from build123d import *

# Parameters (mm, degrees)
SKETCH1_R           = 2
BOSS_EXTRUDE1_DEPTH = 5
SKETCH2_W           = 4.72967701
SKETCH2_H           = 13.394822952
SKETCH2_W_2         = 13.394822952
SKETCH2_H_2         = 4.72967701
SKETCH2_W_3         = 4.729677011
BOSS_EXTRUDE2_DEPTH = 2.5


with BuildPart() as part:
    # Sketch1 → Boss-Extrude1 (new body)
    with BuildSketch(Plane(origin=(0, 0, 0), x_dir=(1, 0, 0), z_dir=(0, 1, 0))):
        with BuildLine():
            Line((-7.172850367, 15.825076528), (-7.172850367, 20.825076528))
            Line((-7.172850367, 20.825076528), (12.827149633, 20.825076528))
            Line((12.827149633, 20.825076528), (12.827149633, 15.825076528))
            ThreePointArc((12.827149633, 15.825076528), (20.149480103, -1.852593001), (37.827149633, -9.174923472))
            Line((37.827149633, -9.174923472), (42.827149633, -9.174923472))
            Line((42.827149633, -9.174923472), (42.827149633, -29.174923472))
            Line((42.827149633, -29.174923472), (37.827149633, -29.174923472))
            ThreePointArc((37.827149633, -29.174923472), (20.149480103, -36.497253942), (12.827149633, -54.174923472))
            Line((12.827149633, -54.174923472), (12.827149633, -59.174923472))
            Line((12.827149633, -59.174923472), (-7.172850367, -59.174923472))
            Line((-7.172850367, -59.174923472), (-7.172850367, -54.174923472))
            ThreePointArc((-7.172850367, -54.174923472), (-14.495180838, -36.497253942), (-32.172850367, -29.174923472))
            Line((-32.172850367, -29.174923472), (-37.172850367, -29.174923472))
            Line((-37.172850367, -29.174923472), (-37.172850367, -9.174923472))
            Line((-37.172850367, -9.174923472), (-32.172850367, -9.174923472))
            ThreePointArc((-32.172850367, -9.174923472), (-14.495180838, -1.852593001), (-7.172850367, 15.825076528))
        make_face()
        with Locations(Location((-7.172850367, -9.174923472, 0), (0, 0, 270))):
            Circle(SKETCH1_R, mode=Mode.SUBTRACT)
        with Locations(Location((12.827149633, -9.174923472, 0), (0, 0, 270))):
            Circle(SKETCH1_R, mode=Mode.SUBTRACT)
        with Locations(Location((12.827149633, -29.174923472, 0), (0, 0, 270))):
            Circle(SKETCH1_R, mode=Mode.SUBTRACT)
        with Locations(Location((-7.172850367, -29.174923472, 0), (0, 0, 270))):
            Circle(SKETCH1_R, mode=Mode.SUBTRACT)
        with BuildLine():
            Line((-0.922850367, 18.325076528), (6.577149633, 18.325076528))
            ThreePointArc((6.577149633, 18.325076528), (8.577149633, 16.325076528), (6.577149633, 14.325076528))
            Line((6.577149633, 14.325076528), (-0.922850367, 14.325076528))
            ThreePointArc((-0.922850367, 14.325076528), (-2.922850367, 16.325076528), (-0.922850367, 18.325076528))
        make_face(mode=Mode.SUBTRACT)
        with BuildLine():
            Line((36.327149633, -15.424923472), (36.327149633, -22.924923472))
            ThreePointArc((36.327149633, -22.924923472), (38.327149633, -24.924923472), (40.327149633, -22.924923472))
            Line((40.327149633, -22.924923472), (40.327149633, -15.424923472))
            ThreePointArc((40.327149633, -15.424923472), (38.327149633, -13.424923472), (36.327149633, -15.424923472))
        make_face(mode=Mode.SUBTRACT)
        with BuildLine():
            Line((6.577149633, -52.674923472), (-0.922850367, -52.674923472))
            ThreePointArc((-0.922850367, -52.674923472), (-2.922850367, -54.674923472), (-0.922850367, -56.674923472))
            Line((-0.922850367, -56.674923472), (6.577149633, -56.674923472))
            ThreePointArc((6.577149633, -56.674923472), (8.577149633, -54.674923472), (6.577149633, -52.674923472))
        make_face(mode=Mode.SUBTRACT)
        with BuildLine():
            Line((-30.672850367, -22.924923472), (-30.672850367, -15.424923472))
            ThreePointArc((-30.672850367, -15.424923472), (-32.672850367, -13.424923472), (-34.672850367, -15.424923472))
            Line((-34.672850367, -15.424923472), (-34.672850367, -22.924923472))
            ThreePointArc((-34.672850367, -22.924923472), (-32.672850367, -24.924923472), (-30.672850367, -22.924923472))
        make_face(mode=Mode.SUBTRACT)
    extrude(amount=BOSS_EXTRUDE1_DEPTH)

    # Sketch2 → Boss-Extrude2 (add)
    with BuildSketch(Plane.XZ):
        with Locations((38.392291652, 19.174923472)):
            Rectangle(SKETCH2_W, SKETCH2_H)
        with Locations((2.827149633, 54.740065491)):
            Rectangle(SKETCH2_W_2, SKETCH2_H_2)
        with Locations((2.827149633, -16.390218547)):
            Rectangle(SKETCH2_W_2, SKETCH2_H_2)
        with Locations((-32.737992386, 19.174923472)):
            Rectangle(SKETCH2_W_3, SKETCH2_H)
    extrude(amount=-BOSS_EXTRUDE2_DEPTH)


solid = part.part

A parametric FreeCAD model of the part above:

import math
import FreeCAD as App
import Part
import Sketcher

V = App.Vector


def add_polygon(sketch, points):
    """Adds a closed chain of lines whose ends are joined by coincident constraints."""
    first, n = sketch.GeometryCount, len(points)
    for a, b in zip(points, points[1:] + points[:1]):
        sketch.addGeometry(Part.LineSegment(App.Vector(*a, 0), App.Vector(*b, 0)), False)
    for i in range(n):
        sketch.addConstraint(Sketcher.Constraint("Coincident", first + i, 2, first + (i + 1) % n, 1))

doc = App.newDocument("Part")
params = doc.addObject("Spreadsheet::Sheet", "Params")
for row, (alias, value) in enumerate([
    ("sketch1_diameter", "4 mm"),
    ("sketch1_radius", "25 mm"),
    ("sketch1_width", "5 mm"),
    ("sketch1_width2", "20 mm"),
    ("sketch1_width3", "7.5 mm"),
    ("pad1_length", "5 mm"),
    ("pad2_length", "2.5 mm"),
], start=1):
    params.set(f"A{row}", alias)
    params.set(f"B{row}", "=" + value)
    params.setAlias(f"B{row}", alias)

body = doc.addObject("PartDesign::Body", "Body")

# Sketch on XZ plane
sketch1 = body.newObject("Sketcher::SketchObject", "Sketch")
sketch1.AttachmentSupport = (doc.getObject("XZ_Plane"), [""])
sketch1.MapMode = "FlatFace"
sketch1.addGeometry([
    Part.LineSegment(V(-7.2, -20.8, 0), V(-7.2, -15.8, 0)),  # 0
    Part.ArcOfCircle(Part.Circle(V(-32.2, -15.8, 0), V(0, 0, 1), 25), math.radians(0), math.radians(90)),  # 1
    Part.LineSegment(V(-32.2, 9.2, 0), V(-37.2, 9.2, 0)),  # 2
    Part.LineSegment(V(-37.2, 9.2, 0), V(-37.2, 29.2, 0)),  # 3
    Part.LineSegment(V(-37.2, 29.2, 0), V(-32.2, 29.2, 0)),  # 4
    Part.ArcOfCircle(Part.Circle(V(-32.2, 54.2, 0), V(0, 0, 1), 25), math.radians(-90), math.radians(0)),  # 5
    Part.LineSegment(V(-7.2, 54.2, 0), V(-7.2, 59.2, 0)),  # 6
    Part.LineSegment(V(-7.2, 59.2, 0), V(12.8, 59.2, 0)),  # 7
    Part.LineSegment(V(12.8, 59.2, 0), V(12.8, 54.2, 0)),  # 8
    Part.ArcOfCircle(Part.Circle(V(37.8, 54.2, 0), V(0, 0, 1), 25), math.radians(180), math.radians(270)),  # 9
    Part.LineSegment(V(37.8, 29.2, 0), V(42.8, 29.2, 0)),  # 10
    Part.LineSegment(V(42.8, 29.2, 0), V(42.8, 9.2, 0)),  # 11
    Part.LineSegment(V(42.8, 9.2, 0), V(37.8, 9.2, 0)),  # 12
    Part.ArcOfCircle(Part.Circle(V(37.8, -15.8, 0), V(0, 0, 1), 25), math.radians(90), math.radians(180)),  # 13
    Part.LineSegment(V(12.8, -15.8, 0), V(12.8, -20.8, 0)),  # 14
    Part.LineSegment(V(12.8, -20.8, 0), V(-7.2, -20.8, 0)),  # 15
    Part.Circle(V(12.8, 29.2, 0), V(0, 0, 1), 2),  # 16
    Part.ArcOfCircle(Part.Circle(V(6.6, 54.7, 0), V(0, 0, 1), 2), math.radians(-90), math.radians(90)),  # 17
    Part.LineSegment(V(6.6, 56.7, 0), V(-0.9, 56.7, 0)),  # 18
    Part.ArcOfCircle(Part.Circle(V(-0.9, 54.7, 0), V(0, 0, 1), 2), math.radians(90), math.radians(270)),  # 19
    Part.LineSegment(V(-0.9, 52.7, 0), V(6.6, 52.7, 0)),  # 20
    Part.Circle(V(-7.2, 29.2, 0), V(0, 0, 1), 2),  # 21
    Part.ArcOfCircle(Part.Circle(V(38.3, 15.4, 0), V(0, 0, 1), 2), math.radians(180), math.radians(360)),  # 22
    Part.LineSegment(V(40.3, 15.4, 0), V(40.3, 22.9, 0)),  # 23
    Part.ArcOfCircle(Part.Circle(V(38.3, 22.9, 0), V(0, 0, 1), 2), math.radians(0), math.radians(180)),  # 24
    Part.LineSegment(V(36.3, 22.9, 0), V(36.3, 15.4, 0)),  # 25
    Part.Circle(V(12.8, 9.2, 0), V(0, 0, 1), 2),  # 26
    Part.Circle(V(-7.2, 9.2, 0), V(0, 0, 1), 2),  # 27
    Part.ArcOfCircle(Part.Circle(V(-32.7, 22.9, 0), V(0, 0, 1), 2), math.radians(0), math.radians(180)),  # 28
    Part.LineSegment(V(-34.7, 22.9, 0), V(-34.7, 15.4, 0)),  # 29
    Part.ArcOfCircle(Part.Circle(V(-32.7, 15.4, 0), V(0, 0, 1), 2), math.radians(180), math.radians(360)),  # 30
    Part.LineSegment(V(-30.7, 15.4, 0), V(-30.7, 22.9, 0)),  # 31
    Part.LineSegment(V(-0.9, -18.3, 0), V(6.6, -18.3, 0)),  # 32
    Part.ArcOfCircle(Part.Circle(V(6.6, -16.3, 0), V(0, 0, 1), 2), math.radians(-90), math.radians(90)),  # 33
    Part.LineSegment(V(6.6, -14.3, 0), V(-0.9, -14.3, 0)),  # 34
    Part.ArcOfCircle(Part.Circle(V(-0.9, -16.3, 0), V(0, 0, 1), 2), math.radians(90), math.radians(270)),  # 35
], False)
sketch1.addConstraint([
    Sketcher.Constraint("Tangent", 0, 2, 1, 1),
    Sketcher.Constraint("Tangent", 1, 2, 2, 1),
    Sketcher.Constraint("Coincident", 2, 2, 3, 1),
    Sketcher.Constraint("Coincident", 3, 2, 4, 1),
    Sketcher.Constraint("Tangent", 4, 2, 5, 1),
    Sketcher.Constraint("Tangent", 5, 2, 6, 1),
    Sketcher.Constraint("Coincident", 6, 2, 7, 1),
    Sketcher.Constraint("Coincident", 7, 2, 8, 1),
    Sketcher.Constraint("Tangent", 8, 2, 9, 1),
    Sketcher.Constraint("Tangent", 9, 2, 10, 1),
    Sketcher.Constraint("Coincident", 10, 2, 11, 1),
    Sketcher.Constraint("Coincident", 11, 2, 12, 1),
    Sketcher.Constraint("Tangent", 12, 2, 13, 1),
    Sketcher.Constraint("Tangent", 13, 2, 14, 1),
    Sketcher.Constraint("Coincident", 14, 2, 15, 1),
    Sketcher.Constraint("Coincident", 15, 2, 0, 1),
    Sketcher.Constraint("Tangent", 17, 2, 18, 1),
    Sketcher.Constraint("Tangent", 18, 2, 19, 1),
    Sketcher.Constraint("Tangent", 19, 2, 20, 1),
    Sketcher.Constraint("Tangent", 20, 2, 17, 1),
    Sketcher.Constraint("Tangent", 22, 2, 23, 1),
    Sketcher.Constraint("Tangent", 23, 2, 24, 1),
    Sketcher.Constraint("Tangent", 24, 2, 25, 1),
    Sketcher.Constraint("Tangent", 25, 2, 22, 1),
    Sketcher.Constraint("Tangent", 28, 2, 29, 1),
    Sketcher.Constraint("Tangent", 29, 2, 30, 1),
    Sketcher.Constraint("Tangent", 30, 2, 31, 1),
    Sketcher.Constraint("Tangent", 31, 2, 28, 1),
    Sketcher.Constraint("Tangent", 32, 2, 33, 1),
    Sketcher.Constraint("Tangent", 33, 2, 34, 1),
    Sketcher.Constraint("Tangent", 34, 2, 35, 1),
    Sketcher.Constraint("Tangent", 35, 2, 32, 1),
    Sketcher.Constraint("Vertical", 0),
    Sketcher.Constraint("Horizontal", 2),
    Sketcher.Constraint("Vertical", 3),
    Sketcher.Constraint("Horizontal", 4),
    Sketcher.Constraint("Vertical", 6),
    Sketcher.Constraint("Horizontal", 7),
    Sketcher.Constraint("Vertical", 8),
    Sketcher.Constraint("Horizontal", 10),
    Sketcher.Constraint("Vertical", 11),
    Sketcher.Constraint("Horizontal", 12),
    Sketcher.Constraint("Vertical", 14),
    Sketcher.Constraint("Horizontal", 15),
    Sketcher.Constraint("Horizontal", 18),
    Sketcher.Constraint("Horizontal", 20),
    Sketcher.Constraint("Vertical", 23),
    Sketcher.Constraint("Vertical", 25),
    Sketcher.Constraint("Vertical", 29),
    Sketcher.Constraint("Vertical", 31),
    Sketcher.Constraint("Horizontal", 32),
    Sketcher.Constraint("Horizontal", 34),
    Sketcher.Constraint("Equal", 1, 5),
    Sketcher.Constraint("Equal", 5, 9),
    Sketcher.Constraint("Equal", 9, 13),
    Sketcher.Constraint("Equal", 16, 17),
    Sketcher.Constraint("Equal", 19, 21),
    Sketcher.Constraint("Equal", 21, 22),
    Sketcher.Constraint("Equal", 24, 26),
    Sketcher.Constraint("Equal", 26, 27),
    Sketcher.Constraint("Equal", 27, 28),
    Sketcher.Constraint("Equal", 30, 33),
    Sketcher.Constraint("Horizontal", 5, 3, 9, 3),
    Sketcher.Constraint("Horizontal", 1, 3, 13, 3),
    Sketcher.Constraint("Horizontal", 16, 3, 21, 3),
    Sketcher.Constraint("Horizontal", 26, 3, 27, 3),
    Sketcher.Constraint("Horizontal", 24, 3, 28, 3),
    Sketcher.Constraint("Horizontal", 22, 3, 30, 3),
    Sketcher.Constraint("Horizontal", 27, 3, 1, 2),
    Sketcher.Constraint("Horizontal", 21, 3, 3, 2),
    Sketcher.Constraint("Vertical", 1, 3, 5, 3),
    Sketcher.Constraint("Vertical", 9, 3, 13, 3),
    Sketcher.Constraint("Vertical", 16, 3, 26, 3),
    Sketcher.Constraint("Vertical", 21, 3, 27, 3),
    Sketcher.Constraint("Vertical", 17, 3, 33, 3),
    Sketcher.Constraint("Vertical", 19, 3, 35, 3),
    Sketcher.Constraint("Vertical", 27, 3, 0, 2),
    Sketcher.Constraint("Vertical", 26, 3, 7, 2),
    Sketcher.Constraint("Equal", 4, 10),
    Sketcher.Constraint("Equal", 12, 0),
    Sketcher.Constraint("Equal", 15, 3),
    Sketcher.Constraint("Equal", 0, 6),
    Sketcher.Constraint("Equal", 34, 23),
    Sketcher.Constraint("Diameter", 16, 4.0),
    Sketcher.Constraint("Radius", 1, 25.0),
    Sketcher.Constraint("DistanceX", 2, 2, 2, 1, 5.0),
    Sketcher.Constraint("DistanceX", 7, 1, 7, 2, 20.0),
    Sketcher.Constraint("DistanceX", 18, 2, 18, 1, 7.5),
    Sketcher.Constraint("DistanceY", 16, 3, 17, 3, 25.5),
    Sketcher.Constraint("DistanceX", 16, 3, 22, 3, 25.5),
    Sketcher.Constraint("DistanceX", 28, 3, 21, 3, 25.5),
    Sketcher.Constraint("DistanceY", 33, 3, 26, 3, 25.5),
    Sketcher.Constraint("DistanceX", 17, 3, 16, 3, 6.25),
    Sketcher.Constraint("DistanceY", 22, 3, 16, 3, 13.75),
    Sketcher.Constraint("DistanceX", 1, 3, -1, 1, 32.17285),
    Sketcher.Constraint("DistanceY", 1, 3, -1, 1, 15.825077),
])
sketch1.setExpression("Constraints[83]", "Params.sketch1_diameter")
sketch1.setExpression("Constraints[84]", "Params.sketch1_radius")
sketch1.setExpression("Constraints[85]", "Params.sketch1_width")
sketch1.setExpression("Constraints[86]", "Params.sketch1_width2")
sketch1.setExpression("Constraints[87]", "Params.sketch1_width3")
pad1 = body.newObject("PartDesign::Pad", "Pad")
pad1.Profile = sketch1
pad1.setExpression("Length", "Params.pad1_length")
pad1.Reversed = True

# Sketch on XZ plane
sketch2 = body.newObject("Sketcher::SketchObject", "Sketch001")
sketch2.AttachmentSupport = (doc.getObject("XZ_Plane"), [""])
sketch2.MapMode = "FlatFace"
add_polygon(sketch2, [(36, 25.9), (36, 12.5), (40.8, 12.5), (40.8, 25.9)])  # lines 0-3
add_polygon(sketch2, [(-3.9, 57.1), (-3.9, 52.4), (9.5, 52.4), (9.5, 57.1)])  # lines 4-7
add_polygon(sketch2, [(-3.9, -14), (-3.9, -18.8), (9.5, -18.8), (9.5, -14)])  # lines 8-11
add_polygon(sketch2, [(-35.1, 25.9), (-35.1, 12.5), (-30.4, 12.5), (-30.4, 25.9)])  # lines 12-15
sketch2.addConstraint([
    Sketcher.Constraint("Vertical", 0),
    Sketcher.Constraint("Horizontal", 1),
    Sketcher.Constraint("Vertical", 2),
    Sketcher.Constraint("Horizontal", 3),
    Sketcher.Constraint("Vertical", 4),
    Sketcher.Constraint("Horizontal", 5),
    Sketcher.Constraint("Vertical", 6),
    Sketcher.Constraint("Horizontal", 7),
    Sketcher.Constraint("Vertical", 8),
    Sketcher.Constraint("Horizontal", 9),
    Sketcher.Constraint("Vertical", 10),
    Sketcher.Constraint("Horizontal", 11),
    Sketcher.Constraint("Vertical", 12),
    Sketcher.Constraint("Horizontal", 13),
    Sketcher.Constraint("Vertical", 14),
    Sketcher.Constraint("Horizontal", 15),
    Sketcher.Constraint("Horizontal", 1, 2, 12, 2),
    Sketcher.Constraint("Horizontal", 3, 2, 14, 2),
    Sketcher.Constraint("Vertical", 7, 2, 8, 2),
    Sketcher.Constraint("Vertical", 6, 2, 9, 2),
    Sketcher.Constraint("Equal", 3, 13),
    Sketcher.Constraint("Equal", 11, 0),
    Sketcher.Constraint("Equal", 15, 4),
    Sketcher.Constraint("Equal", 6, 8),
    Sketcher.Constraint("DistanceX", 1, 1, 1, 2, 4.729677),
    Sketcher.Constraint("DistanceX", 5, 1, 5, 2, 13.394823),
    Sketcher.Constraint("DistanceY", -1, 1, 0, 2, 12.477512),
    Sketcher.Constraint("DistanceX", -1, 1, 1, 2, 40.75713),
    Sketcher.Constraint("DistanceX", 4, 2, -1, 1, 3.870262),
    Sketcher.Constraint("DistanceY", 10, 2, -1, 1, 14.02538),
    Sketcher.Constraint("DistanceX", 12, 2, -1, 1, 35.102831),
    Sketcher.Constraint("DistanceY", 3, 2, 6, 2, 31.232569),
])
pad2 = body.newObject("PartDesign::Pad", "Pad001")
pad2.Profile = sketch2
pad2.setExpression("Length", "Params.pad2_length")
pad2.Reversed = True

doc.recompute()
